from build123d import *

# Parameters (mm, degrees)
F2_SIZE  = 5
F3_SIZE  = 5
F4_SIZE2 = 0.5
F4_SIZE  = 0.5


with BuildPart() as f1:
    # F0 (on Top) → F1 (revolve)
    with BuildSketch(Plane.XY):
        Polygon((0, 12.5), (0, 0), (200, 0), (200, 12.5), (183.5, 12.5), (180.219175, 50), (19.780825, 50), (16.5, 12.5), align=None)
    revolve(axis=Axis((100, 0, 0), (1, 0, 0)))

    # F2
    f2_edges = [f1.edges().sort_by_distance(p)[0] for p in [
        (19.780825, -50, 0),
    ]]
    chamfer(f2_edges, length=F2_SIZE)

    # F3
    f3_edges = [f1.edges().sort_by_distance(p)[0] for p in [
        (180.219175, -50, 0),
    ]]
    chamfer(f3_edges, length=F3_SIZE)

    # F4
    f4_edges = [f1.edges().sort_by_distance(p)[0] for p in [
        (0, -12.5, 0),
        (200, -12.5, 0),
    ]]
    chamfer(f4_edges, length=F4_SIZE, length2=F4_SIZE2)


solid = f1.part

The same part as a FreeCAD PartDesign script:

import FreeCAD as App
import Part
import Sketcher

V = App.Vector
Q = App.Units.Quantity


def edges_at(feature, points):
    """Names of the edges that pass closest to the given points."""
    edges = feature.Shape.Edges
    near = lambda p: min(range(len(edges)), key=lambda i: edges[i].distToShape(Part.Vertex(*p))[0])
    return sorted({f"Edge{near(p) + 1}" for p in points})

doc = App.newDocument("Part")
params = doc.addObject("Spreadsheet::Sheet", "Params")
for row, (alias, value) in enumerate([
    ("sketch1_width", "200 mm"),
    ("sketch1_width2", "16.5 mm"),
    ("sketch1_height", "12.5 mm"),
    ("revolution_angle", "360 deg"),
    ("chamfer_size", "5 mm"),
    ("chamfer2_size", "5 mm"),
    ("chamfer3_size", "0.5 mm"),
    ("chamfer3_size2", "0.5 mm"),
], start=1):
    params.set(f"A{row}", alias)
    params.set(f"B{row}", "=" + value)
    params.setAlias(f"B{row}", alias)

body = doc.addObject("PartDesign::Body", "Body")

# Sketch on XY plane
sketch1 = body.newObject("Sketcher::SketchObject", "Sketch")
sketch1.AttachmentSupport = (doc.getObject("XY_Plane"), [""])
sketch1.MapMode = "FlatFace"
sketch1.addGeometry([
    Part.LineSegment(V(0, 12, 0), V(0, 0, 0)),  # 0
    Part.LineSegment(V(0, 0, 0), V(200, 0, 0)),  # 1
    Part.LineSegment(V(200, 0, 0), V(200, 12, 0)),  # 2
    Part.LineSegment(V(200, 12, 0), V(184, 12, 0)),  # 3
    Part.LineSegment(V(184, 12, 0), V(180, 50, 0)),  # 4
    Part.LineSegment(V(180, 50, 0), V(20, 50, 0)),  # 5
    Part.LineSegment(V(20, 50, 0), V(16, 12, 0)),  # 6
    Part.LineSegment(V(16, 12, 0), V(0, 12, 0)),  # 7
], False)
sketch1.addConstraint([
    Sketcher.Constraint("Coincident", 0, 2, 1, 1),
    Sketcher.Constraint("Coincident", 1, 2, 2, 1),
    Sketcher.Constraint("Coincident", 2, 2, 3, 1),
    Sketcher.Constraint("Coincident", 3, 2, 4, 1),
    Sketcher.Constraint("Coincident", 4, 2, 5, 1),
    Sketcher.Constraint("Coincident", 5, 2, 6, 1),
    Sketcher.Constraint("Coincident", 6, 2, 7, 1),
    Sketcher.Constraint("Coincident", 7, 2, 0, 1),
    Sketcher.Constraint("Vertical", 0),
    Sketcher.Constraint("Horizontal", 1),
    Sketcher.Constraint("Vertical", 2),
    Sketcher.Constraint("Horizontal", 3),
    Sketcher.Constraint("Horizontal", 5),
    Sketcher.Constraint("Horizontal", 7),
    Sketcher.Constraint("Coincident", 0, 2, -1, 1),
    Sketcher.Constraint("Horizontal", 3, 2, 6, 2),
    Sketcher.Constraint("Equal", 3, 7),
    Sketcher.Constraint("Equal", 4, 6),
    Sketcher.Constraint("DistanceX", 1, 1, 1, 2, 200.0),
    Sketcher.Constraint("Angle", 4, Q("95 deg")),
    Sketcher.Constraint("DistanceX", 3, 2, 3, 1, 16.5),
    Sketcher.Constraint("DistanceY", 0, 2, 0, 1, 12.5),
    Sketcher.Constraint("DistanceY", -1, 1, 4, 2, 50.0),
])
sketch1.setExpression("Constraints[18]", "Params.sketch1_width")
sketch1.setExpression("Constraints[20]", "Params.sketch1_width2")
sketch1.setExpression("Constraints[21]", "Params.sketch1_height")
revolution = body.newObject("PartDesign::Revolution", "Revolution")
revolution.Profile = sketch1
revolution.ReferenceAxis = (sketch1, ["H_Axis"])
revolution.setExpression("Angle", "Params.revolution_angle")
doc.recompute()

chamfer = body.newObject("PartDesign::Chamfer", "Chamfer")
chamfer.Base = (revolution, edges_at(revolution, [(19.781, -50, 0)]))
chamfer.setExpression("Size", "Params.chamfer_size")
doc.recompute()

chamfer2 = body.newObject("PartDesign::Chamfer", "Chamfer001")
chamfer2.Base = (chamfer, edges_at(chamfer, [(180.219, -50, 0)]))
chamfer2.setExpression("Size", "Params.chamfer2_size")
doc.recompute()

chamfer3 = body.newObject("PartDesign::Chamfer", "Chamfer002")
chamfer3.Base = (chamfer2, edges_at(chamfer2, [(0, -12.5, 0), (200, -12.5, 0)]))
chamfer3.ChamferType = "Two distances"
chamfer3.setExpression("Size", "Params.chamfer3_size")
chamfer3.setExpression("Size2", "Params.chamfer3_size2")

doc.recompute()
